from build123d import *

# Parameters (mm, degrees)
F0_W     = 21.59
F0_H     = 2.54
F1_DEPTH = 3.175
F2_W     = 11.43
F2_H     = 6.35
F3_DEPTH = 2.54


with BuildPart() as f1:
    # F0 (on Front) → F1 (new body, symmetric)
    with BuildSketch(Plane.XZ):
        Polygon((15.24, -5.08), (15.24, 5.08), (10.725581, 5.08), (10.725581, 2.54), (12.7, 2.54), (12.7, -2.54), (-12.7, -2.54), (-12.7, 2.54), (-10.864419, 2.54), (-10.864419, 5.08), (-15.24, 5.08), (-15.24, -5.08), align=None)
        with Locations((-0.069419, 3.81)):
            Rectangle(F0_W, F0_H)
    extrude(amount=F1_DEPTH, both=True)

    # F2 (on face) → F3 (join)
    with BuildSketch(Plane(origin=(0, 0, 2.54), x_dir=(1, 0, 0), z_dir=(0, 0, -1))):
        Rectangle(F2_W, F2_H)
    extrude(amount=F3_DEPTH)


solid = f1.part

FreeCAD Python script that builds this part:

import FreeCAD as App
import Part
import Sketcher
Q = App.Units.Quantity


def add_polygon(sketch, points):
    """Adds a closed chain of lines whose ends are joined by coincident constraints."""
    first, n = sketch.GeometryCount, len(points)
    for a, b in zip(points, points[1:] + points[:1]):
        sketch.addGeometry(Part.LineSegment(App.Vector(*a, 0), App.Vector(*b, 0)), False)
    for i in range(n):
        sketch.addConstraint(Sketcher.Constraint("Coincident", first + i, 2, first + (i + 1) % n, 1))

doc = App.newDocument("Part")
params = doc.addObject("Spreadsheet::Sheet", "Params")
for row, (alias, value) in enumerate([
    ("sketch1_width", "1 in"),
    ("sketch1_width2", "1.2 in"),
    ("sketch1_height", "0.4 in"),
    ("sketch1_height2", "0.2 in"),
    ("pad1_length", "0.25 in"),
    ("sketch2_width", "0.45 in"),
    ("sketch2_height", "0.25 in"),
    ("pad2_length", "0.1 in"),
], start=1):
    params.set(f"A{row}", alias)
    params.set(f"B{row}", "=" + value)
    params.setAlias(f"B{row}", alias)

body = doc.addObject("PartDesign::Body", "Body")

sketch1 = body.newObject("Sketcher::SketchObject", "Sketch")
sketch1.AttachmentSupport = (doc.getObject("XZ_Plane"), [""])
sketch1.MapMode = "FlatFace"
add_polygon(sketch1, [(15, -5), (15, 5), (-15, 5), (-15, -5)])
add_polygon(sketch1, [(13, 3), (13, -3), (-13, -3), (-13, 3)])
sketch1.addConstraint(Sketcher.Constraint("Vertical", 0))
sketch1.addConstraint(Sketcher.Constraint("Horizontal", 1))
sketch1.addConstraint(Sketcher.Constraint("Vertical", 2))
sketch1.addConstraint(Sketcher.Constraint("Horizontal", 3))
sketch1.addConstraint(Sketcher.Constraint("Vertical", 4))
sketch1.addConstraint(Sketcher.Constraint("Horizontal", 5))
sketch1.addConstraint(Sketcher.Constraint("Vertical", 6))
sketch1.addConstraint(Sketcher.Constraint("Horizontal", 7))
sketch1.addConstraint(Sketcher.Constraint("Symmetric", 0, 2, 2, 2, -1, 1))
sketch1.addConstraint(Sketcher.Constraint("Symmetric", 4, 2, 6, 2, -1, 1))
sketch1.addConstraint(Sketcher.Constraint("DistanceX", 5, 2, 5, 1, Q("1 in")))
sketch1.addConstraint(Sketcher.Constraint("DistanceX", 1, 2, 1, 1, Q("1.2 in")))
sketch1.addConstraint(Sketcher.Constraint("DistanceY", 0, 1, 0, 2, Q("0.4 in")))
sketch1.addConstraint(Sketcher.Constraint("DistanceY", 4, 2, 4, 1, Q("0.2 in")))
sketch1.setExpression("Constraints[18]", "Params.sketch1_width")
sketch1.setExpression("Constraints[19]", "Params.sketch1_width2")
sketch1.setExpression("Constraints[20]", "Params.sketch1_height")
sketch1.setExpression("Constraints[21]", "Params.sketch1_height2")
pad1 = body.newObject("PartDesign::Pad", "Pad")
pad1.Profile = sketch1
pad1.setExpression("Length", "Params.pad1_length")
pad1.Midplane = True

sketch2 = body.newObject("Sketcher::SketchObject", "Sketch001")
sketch2.AttachmentSupport = (doc.getObject("XY_Plane"), [""])
sketch2.MapMode = "FlatFace"
sketch2.AttachmentOffset = App.Placement(App.Vector(0, 0, 0.1 * 25.4), App.Rotation())
add_polygon(sketch2, [(-6, -3), (-6, 3), (6, 3), (6, -3)])
sketch2.addConstraint(Sketcher.Constraint("Vertical", 0))
sketch2.addConstraint(Sketcher.Constraint("Horizontal", 1))
sketch2.addConstraint(Sketcher.Constraint("Vertical", 2))
sketch2.addConstraint(Sketcher.Constraint("Horizontal", 3))
sketch2.addConstraint(Sketcher.Constraint("Symmetric", 0, 2, 2, 2, -1, 1))
sketch2.addConstraint(Sketcher.Constraint("DistanceX", 1, 1, 1, 2, Q("0.45 in")))
sketch2.addConstraint(Sketcher.Constraint("DistanceY", 0, 1, 0, 2, Q("0.25 in")))
sketch2.setExpression("Constraints[9]", "Params.sketch2_width")
sketch2.setExpression("Constraints[10]", "Params.sketch2_height")
pad2 = body.newObject("PartDesign::Pad", "Pad001")
pad2.Profile = sketch2
pad2.setExpression("Length", "Params.pad2_length")
pad2.Reversed = True

doc.recompute()
